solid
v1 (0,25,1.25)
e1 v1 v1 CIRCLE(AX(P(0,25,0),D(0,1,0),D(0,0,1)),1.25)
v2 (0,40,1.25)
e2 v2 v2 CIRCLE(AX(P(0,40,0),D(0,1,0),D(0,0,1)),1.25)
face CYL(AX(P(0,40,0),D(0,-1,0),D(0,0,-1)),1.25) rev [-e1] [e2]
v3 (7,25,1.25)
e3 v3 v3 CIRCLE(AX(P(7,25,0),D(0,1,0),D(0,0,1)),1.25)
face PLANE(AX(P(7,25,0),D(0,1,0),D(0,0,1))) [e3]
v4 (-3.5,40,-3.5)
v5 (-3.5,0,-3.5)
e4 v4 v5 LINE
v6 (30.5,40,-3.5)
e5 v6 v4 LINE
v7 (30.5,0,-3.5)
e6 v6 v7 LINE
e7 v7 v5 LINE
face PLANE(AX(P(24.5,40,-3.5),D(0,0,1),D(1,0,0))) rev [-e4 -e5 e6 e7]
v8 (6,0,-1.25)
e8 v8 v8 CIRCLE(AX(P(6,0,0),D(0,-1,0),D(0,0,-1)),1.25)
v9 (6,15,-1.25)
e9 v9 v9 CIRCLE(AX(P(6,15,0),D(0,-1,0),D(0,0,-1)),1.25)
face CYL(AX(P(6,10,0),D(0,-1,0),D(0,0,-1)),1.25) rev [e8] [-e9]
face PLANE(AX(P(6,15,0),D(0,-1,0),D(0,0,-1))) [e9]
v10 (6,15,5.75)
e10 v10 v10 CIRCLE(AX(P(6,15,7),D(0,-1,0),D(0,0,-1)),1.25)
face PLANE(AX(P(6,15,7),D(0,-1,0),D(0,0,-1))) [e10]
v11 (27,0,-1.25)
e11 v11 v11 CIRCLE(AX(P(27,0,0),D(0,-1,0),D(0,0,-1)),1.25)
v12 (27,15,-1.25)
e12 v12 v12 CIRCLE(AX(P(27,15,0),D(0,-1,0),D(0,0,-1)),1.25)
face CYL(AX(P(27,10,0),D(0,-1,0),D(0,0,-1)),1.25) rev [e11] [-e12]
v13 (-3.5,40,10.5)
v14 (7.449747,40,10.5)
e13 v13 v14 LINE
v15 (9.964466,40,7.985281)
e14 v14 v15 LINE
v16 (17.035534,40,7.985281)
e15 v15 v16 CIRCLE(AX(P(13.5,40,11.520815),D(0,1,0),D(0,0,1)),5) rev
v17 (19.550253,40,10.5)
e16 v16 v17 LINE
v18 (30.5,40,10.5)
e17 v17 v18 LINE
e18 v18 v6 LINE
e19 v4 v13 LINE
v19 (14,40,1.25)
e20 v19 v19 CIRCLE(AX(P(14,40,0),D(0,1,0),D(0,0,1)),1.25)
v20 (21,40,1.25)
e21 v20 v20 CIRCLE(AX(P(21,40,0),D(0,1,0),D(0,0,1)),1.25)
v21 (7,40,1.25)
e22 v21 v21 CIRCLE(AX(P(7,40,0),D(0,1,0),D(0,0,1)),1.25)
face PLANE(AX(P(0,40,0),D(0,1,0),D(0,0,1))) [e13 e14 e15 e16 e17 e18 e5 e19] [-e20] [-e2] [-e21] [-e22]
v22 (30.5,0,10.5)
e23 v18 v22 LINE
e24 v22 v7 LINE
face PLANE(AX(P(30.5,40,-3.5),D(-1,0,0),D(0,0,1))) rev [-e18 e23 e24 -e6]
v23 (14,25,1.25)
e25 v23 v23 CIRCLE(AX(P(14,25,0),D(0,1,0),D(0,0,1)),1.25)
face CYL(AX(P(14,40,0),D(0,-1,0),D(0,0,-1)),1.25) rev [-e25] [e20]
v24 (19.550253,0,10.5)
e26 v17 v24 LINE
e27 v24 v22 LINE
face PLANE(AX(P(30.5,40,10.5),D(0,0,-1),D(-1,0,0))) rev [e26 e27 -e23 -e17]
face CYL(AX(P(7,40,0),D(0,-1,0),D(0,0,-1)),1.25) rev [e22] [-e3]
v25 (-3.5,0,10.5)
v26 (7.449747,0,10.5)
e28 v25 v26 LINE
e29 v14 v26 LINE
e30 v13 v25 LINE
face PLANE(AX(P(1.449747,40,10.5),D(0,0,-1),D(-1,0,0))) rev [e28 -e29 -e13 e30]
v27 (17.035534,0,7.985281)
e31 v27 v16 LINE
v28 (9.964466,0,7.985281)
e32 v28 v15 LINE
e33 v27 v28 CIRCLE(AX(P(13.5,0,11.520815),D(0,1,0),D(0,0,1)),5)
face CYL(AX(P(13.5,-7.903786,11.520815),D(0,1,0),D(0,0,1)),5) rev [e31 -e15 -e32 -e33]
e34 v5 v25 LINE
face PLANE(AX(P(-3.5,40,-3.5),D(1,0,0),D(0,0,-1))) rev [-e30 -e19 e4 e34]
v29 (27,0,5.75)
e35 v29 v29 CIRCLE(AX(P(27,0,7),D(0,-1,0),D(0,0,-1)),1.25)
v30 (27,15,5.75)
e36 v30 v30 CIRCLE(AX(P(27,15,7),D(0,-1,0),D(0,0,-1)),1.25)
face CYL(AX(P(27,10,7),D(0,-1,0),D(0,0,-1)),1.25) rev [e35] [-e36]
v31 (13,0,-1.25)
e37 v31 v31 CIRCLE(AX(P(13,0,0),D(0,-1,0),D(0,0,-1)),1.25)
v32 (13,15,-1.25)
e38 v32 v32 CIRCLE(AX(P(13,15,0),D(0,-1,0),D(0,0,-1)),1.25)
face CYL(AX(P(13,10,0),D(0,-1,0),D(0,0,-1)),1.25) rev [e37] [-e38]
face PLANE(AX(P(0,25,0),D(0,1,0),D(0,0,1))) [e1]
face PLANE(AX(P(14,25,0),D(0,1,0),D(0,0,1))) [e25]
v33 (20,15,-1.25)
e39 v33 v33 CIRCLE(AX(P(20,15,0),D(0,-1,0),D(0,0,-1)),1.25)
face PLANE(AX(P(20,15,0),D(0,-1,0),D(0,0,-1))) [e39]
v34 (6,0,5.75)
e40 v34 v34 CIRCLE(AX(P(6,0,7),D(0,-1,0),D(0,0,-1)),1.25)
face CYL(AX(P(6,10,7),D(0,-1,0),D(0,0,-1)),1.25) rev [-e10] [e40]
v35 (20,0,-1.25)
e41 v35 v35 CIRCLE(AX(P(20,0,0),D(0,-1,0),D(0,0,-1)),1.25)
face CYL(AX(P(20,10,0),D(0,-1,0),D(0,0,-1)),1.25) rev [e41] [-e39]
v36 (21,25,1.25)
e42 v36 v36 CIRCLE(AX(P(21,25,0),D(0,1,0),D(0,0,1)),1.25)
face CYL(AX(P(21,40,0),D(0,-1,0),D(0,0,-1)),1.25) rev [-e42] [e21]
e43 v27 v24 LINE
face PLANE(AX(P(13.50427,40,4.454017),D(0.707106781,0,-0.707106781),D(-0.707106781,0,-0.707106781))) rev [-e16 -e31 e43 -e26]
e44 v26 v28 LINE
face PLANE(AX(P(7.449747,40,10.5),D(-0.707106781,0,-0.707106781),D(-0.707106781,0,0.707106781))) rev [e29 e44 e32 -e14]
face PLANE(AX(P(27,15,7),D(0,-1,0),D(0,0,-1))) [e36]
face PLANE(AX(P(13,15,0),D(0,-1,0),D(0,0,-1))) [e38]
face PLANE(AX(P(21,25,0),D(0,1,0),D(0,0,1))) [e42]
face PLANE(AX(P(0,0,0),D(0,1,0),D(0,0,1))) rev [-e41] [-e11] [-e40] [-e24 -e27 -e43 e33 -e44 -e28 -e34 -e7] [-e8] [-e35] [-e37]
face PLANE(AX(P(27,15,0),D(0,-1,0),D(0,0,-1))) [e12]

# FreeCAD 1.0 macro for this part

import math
import FreeCAD as App
import Part
import Sketcher

V = App.Vector
Q = App.Units.Quantity

doc = App.newDocument("Part")
body = doc.addObject("PartDesign::Body", "Body")

sketch1 = body.newObject("Sketcher::SketchObject", "Sketch")
sketch1.AttachmentSupport = (doc.getObject("XZ_Plane"), [""])
sketch1.MapMode = "FlatFace"
sketch1.addGeometry([
    Part.LineSegment(V(-3.5, -3.5, 0), V(-3.5, 10.5, 0)),
    Part.LineSegment(V(-3.5, 10.5, 0), V(7.45, 10.5, 0)),
    Part.LineSegment(V(7.45, 10.5, 0), V(13.496, 4.454, 0)),
    Part.LineSegment(V(13.496, 4.454, 0), V(13.504, 4.454, 0)),
    Part.LineSegment(V(13.504, 4.454, 0), V(19.55, 10.5, 0)),
    Part.LineSegment(V(19.55, 10.5, 0), V(30.5, 10.5, 0)),
    Part.LineSegment(V(30.5, 10.5, 0), V(30.5, -3.5, 0)),
    Part.LineSegment(V(30.5, -3.5, 0), V(-3.5, -3.5, 0)),
    Part.Circle(V(0, 7, 0), V(0, 0, 1), 1.25),
    Part.Circle(V(21, 7, 0), V(0, 0, 1), 1.25),
    Part.Circle(V(0, 0, 0), V(0, 0, 1), 1.25),
    Part.Circle(V(7, 0, 0), V(0, 0, 1), 1.25),
    Part.Circle(V(14, 0, 0), V(0, 0, 1), 1.25),
    Part.Circle(V(21, 0, 0), V(0, 0, 1), 1.25),
], False)
sketch1.addConstraint([
    Sketcher.Constraint("Coincident", 0, 2, 1, 1),
    Sketcher.Constraint("Coincident", 1, 2, 2, 1),
    Sketcher.Constraint("Coincident", 2, 2, 3, 1),
    Sketcher.Constraint("Coincident", 3, 2, 4, 1),
    Sketcher.Constraint("Coincident", 4, 2, 5, 1),
    Sketcher.Constraint("Coincident", 5, 2, 6, 1),
    Sketcher.Constraint("Coincident", 6, 2, 7, 1),
    Sketcher.Constraint("Coincident", 7, 2, 0, 1),
    Sketcher.Constraint("Vertical", 0),
    Sketcher.Constraint("Horizontal", 1),
    Sketcher.Constraint("Horizontal", 3),
    Sketcher.Constraint("Horizontal", 5),
    Sketcher.Constraint("Vertical", 6),
    Sketcher.Constraint("Horizontal", 7),
    Sketcher.Constraint("Coincident", 10, 3, -1, 1),
    Sketcher.Constraint("Equal", 8, 9),
    Sketcher.Constraint("Equal", 9, 10),
    Sketcher.Constraint("Equal", 10, 11),
    Sketcher.Constraint("Equal", 11, 12),
    Sketcher.Constraint("Equal", 12, 13),
    Sketcher.Constraint("PointOnObject", 8, 3, -2),
    Sketcher.Constraint("PointOnObject", 11, 3, -1),
    Sketcher.Constraint("PointOnObject", 12, 3, -1),
    Sketcher.Constraint("PointOnObject", 13, 3, -1),
    Sketcher.Constraint("Perpendicular", 2, 4),
    Sketcher.Constraint("Horizontal", 8, 3, 9, 3),
    Sketcher.Constraint("Horizontal", 1, 2, 4, 2),
    Sketcher.Constraint("Vertical", 9, 3, 13, 3),
    Sketcher.Constraint("Equal", 1, 5),
    Sketcher.Constraint("Equal", 2, 4),
    Sketcher.Constraint("Diameter", 8, Q("2.5 mm")),
    Sketcher.Constraint("DistanceX", 7, 2, 7, 1, Q("34 mm")),
    Sketcher.Constraint("DistanceY", 0, 1, 0, 2, Q("14 mm")),
    Sketcher.Constraint("DistanceY", -1, 1, 8, 3, Q("7 mm")),
    Sketcher.Constraint("DistanceX", -1, 1, 9, 3, Q("21 mm")),
    Sketcher.Constraint("DistanceX", -1, 1, 11, 3, Q("7 mm")),
    Sketcher.Constraint("DistanceX", -1, 1, 12, 3, Q("14 mm")),
    Sketcher.Constraint("DistanceX", 0, 2, -1, 1, Q("3.5 mm")),
    Sketcher.Constraint("DistanceY", -1, 1, 0, 2, Q("10.5 mm")),
    Sketcher.Constraint("DistanceX", 3, 1, 3, 2, Q("0.00854 mm")),
    Sketcher.Constraint("Distance", 2, Q("8.550311 mm")),
])
pad1 = body.newObject("PartDesign::Pad", "Pad")
pad1.Profile = sketch1
pad1.Length = 40
pad1.Reversed = True

sketch2 = body.newObject("Sketcher::SketchObject", "Sketch001")
sketch2.AttachmentSupport = (doc.getObject("XZ_Plane"), [""])
sketch2.MapMode = "FlatFace"
sketch2.addGeometry([
    Part.Circle(V(0, 7, 0), V(0, 0, 1), 1.2),
    Part.Circle(V(0, 0, 0), V(0, 0, 1), 1.2),
    Part.ArcOfCircle(Part.Circle(V(6, 0, 0), V(0, 0, 1), 1.2), math.radians(66), math.radians(294)),
    Part.ArcOfCircle(Part.Circle(V(7, 0, 0), V(0, 0, 1), 1.2), math.radians(-114), math.radians(114)),
    Part.ArcOfCircle(Part.Circle(V(13, 0, 0), V(0, 0, 1), 1.2), math.radians(66), math.radians(294)),
    Part.ArcOfCircle(Part.Circle(V(14, 0, 0), V(0, 0, 1), 1.2), math.radians(-114), math.radians(114)),
    Part.ArcOfCircle(Part.Circle(V(20, 0, 0), V(0, 0, 1), 1.2), math.radians(66), math.radians(294)),
    Part.ArcOfCircle(Part.Circle(V(21, 0, 0), V(0, 0, 1), 1.2), math.radians(-114), math.radians(114)),
    Part.Circle(V(21, 7, 0), V(0, 0, 1), 1.2),
], False)
sketch2.addConstraint([
    Sketcher.Constraint("Coincident", 2, 1, 3, 2),
    Sketcher.Constraint("Coincident", 3, 1, 2, 2),
    Sketcher.Constraint("Coincident", 4, 1, 5, 2),
    Sketcher.Constraint("Coincident", 5, 1, 4, 2),
    Sketcher.Constraint("Coincident", 6, 1, 7, 2),
    Sketcher.Constraint("Coincident", 7, 1, 6, 2),
    Sketcher.Constraint("Coincident", 1, 3, -1, 1),
    Sketcher.Constraint("Equal", 0, 1),
    Sketcher.Constraint("Equal", 1, 2),
    Sketcher.Constraint("Equal", 2, 3),
    Sketcher.Constraint("Equal", 3, 4),
    Sketcher.Constraint("Equal", 4, 5),
    Sketcher.Constraint("Equal", 5, 6),
    Sketcher.Constraint("Equal", 6, 7),
    Sketcher.Constraint("Equal", 7, 8),
    Sketcher.Constraint("Symmetric", 2, 1, 3, 1, -1),
    Sketcher.Constraint("Symmetric", 4, 1, 5, 1, -1),
    Sketcher.Constraint("Symmetric", 6, 1, 7, 1, -1),
    Sketcher.Constraint("PointOnObject", 0, 3, -2),
    Sketcher.Constraint("Horizontal", 0, 3, 8, 3),
    Sketcher.Constraint("Horizontal", 2, 1, 4, 1),
    Sketcher.Constraint("Horizontal", 4, 1, 6, 1),
    Sketcher.Constraint("Vertical", 7, 3, 8, 3),
    Sketcher.Constraint("Diameter", 0, Q("2.5 mm")),
    Sketcher.Constraint("DistanceY", -1, 1, 0, 3, Q("7 mm")),
    Sketcher.Constraint("DistanceX", -1, 1, 2, 3, Q("6 mm")),
    Sketcher.Constraint("DistanceX", -1, 1, 3, 3, Q("7 mm")),
    Sketcher.Constraint("DistanceX", -1, 1, 4, 3, Q("13 mm")),
    Sketcher.Constraint("DistanceX", -1, 1, 6, 3, Q("20 mm")),
])
pad2 = body.newObject("PartDesign::Pad", "Pad001")
pad2.Profile = sketch2
pad2.Length = 30
pad2.Reversed = True

sketch3 = body.newObject("Sketcher::SketchObject", "Sketch002")
sketch3.AttachmentSupport = (doc.getObject("XZ_Plane"), [""])
sketch3.MapMode = "FlatFace"
sketch3.addGeometry([
    Part.Circle(V(27, 7, 0), V(0, 0, 1), 1.2),
    Part.Circle(V(27, 0, 0), V(0, 0, 1), 1.2),
    Part.Circle(V(20, 0, 0), V(0, 0, 1), 1.2),
    Part.Circle(V(13, 0, 0), V(0, 0, 1), 1.2),
    Part.Circle(V(6, 0, 0), V(0, 0, 1), 1.2),
    Part.Circle(V(6, 7, 0), V(0, 0, 1), 1.2),
], False)
sketch3.addConstraint([
    Sketcher.Constraint("Equal", 0, 1),
    Sketcher.Constraint("Equal", 1, 2),
    Sketcher.Constraint("Equal", 2, 3),
    Sketcher.Constraint("Equal", 3, 4),
    Sketcher.Constraint("Equal", 4, 5),
    Sketcher.Constraint("PointOnObject", 1, 3, -1),
    Sketcher.Constraint("PointOnObject", 2, 3, -1),
    Sketcher.Constraint("PointOnObject", 3, 3, -1),
    Sketcher.Constraint("PointOnObject", 4, 3, -1),
    Sketcher.Constraint("Horizontal", 0, 3, 5, 3),
    Sketcher.Constraint("Vertical", 0, 3, 1, 3),
    Sketcher.Constraint("Vertical", 4, 3, 5, 3),
    Sketcher.Constraint("Diameter", 0, Q("2.5 mm")),
    Sketcher.Constraint("DistanceX", -1, 1, 0, 3, Q("27 mm")),
    Sketcher.Constraint("DistanceY", -1, 1, 0, 3, Q("7 mm")),
    Sketcher.Constraint("DistanceX", -1, 1, 2, 3, Q("20 mm")),
    Sketcher.Constraint("DistanceX", -1, 1, 3, 3, Q("13 mm")),
    Sketcher.Constraint("DistanceX", -1, 1, 4, 3, Q("6 mm")),
])
pocket1 = body.newObject("PartDesign::Pocket", "Pocket")
pocket1.Profile = sketch3
pocket1.Length = 10

sketch4 = body.newObject("Sketcher::SketchObject", "Sketch003")
sketch4.AttachmentSupport = (doc.getObject("XZ_Plane"), [""])
sketch4.MapMode = "FlatFace"
sketch4.AttachmentOffset = App.Placement(V(0, 0, -30), App.Rotation())
sketch4.addGeometry([
    Part.ArcOfCircle(Part.Circle(V(0, 7, 0), V(0, 0, 1), 1.2), math.radians(-154), math.radians(-26)),
    Part.ArcOfCircle(Part.Circle(V(0, 7, 0), V(0, 0, 1), 1.2), math.radians(0), math.radians(206)),
    Part.ArcOfCircle(Part.Circle(V(0, 7, 0), V(0, 0, 1), 1.3), math.radians(-26), math.radians(0)),
    Part.ArcOfCircle(Part.Circle(V(21, 7, 0), V(0, 0, 1), 1.3), math.radians(-26), math.radians(0)),
    Part.ArcOfCircle(Part.Circle(V(21, 7, 0), V(0, 0, 1), 1.2), math.radians(-154), math.radians(-26)),
    Part.ArcOfCircle(Part.Circle(V(21, 7, 0), V(0, 0, 1), 1.2), math.radians(0), math.radians(206)),
], False)
sketch4.addConstraint([
    Sketcher.Constraint("Tangent", 0, 1, 1, 2),
    Sketcher.Constraint("Tangent", 1, 1, 2, 2),
    Sketcher.Constraint("Tangent", 2, 1, 0, 2),
    Sketcher.Constraint("Tangent", 3, 1, 4, 2),
    Sketcher.Constraint("Tangent", 4, 1, 5, 2),
    Sketcher.Constraint("Tangent", 5, 1, 3, 2),
    Sketcher.Constraint("Equal", 2, 3),
    Sketcher.Constraint("Symmetric", 0, 1, 2, 1, -2),
    Sketcher.Constraint("Horizontal", 2, 3, 3, 3),
    Sketcher.Constraint("Horizontal", 5, 3, 1, 1),
    Sketcher.Constraint("Horizontal", 2, 1, 3, 1),
    Sketcher.Constraint("Horizontal", 3, 1, 4, 1),
    Sketcher.Constraint("Horizontal", 1, 1, 5, 1),
    Sketcher.Constraint("Radius", 0, Q("1.25 mm")),
    Sketcher.Constraint("DistanceY", -1, 1, 0, 3, Q("7 mm")),
    Sketcher.Constraint("DistanceX", -1, 1, 3, 3, Q("21 mm")),
    Sketcher.Constraint("DistanceX", 0, 1, -1, 1, Q("1.124457 mm")),
])
pad3 = body.newObject("PartDesign::Pad", "Pad002")
pad3.Profile = sketch4
pad3.Length = 10
pad3.Reversed = True

sketch5 = body.newObject("Sketcher::SketchObject", "Sketch004")
sketch5.AttachmentSupport = (doc.getObject("XZ_Plane"), [""])
sketch5.MapMode = "FlatFace"
sketch5.AttachmentOffset = App.Placement(V(0, 0, -25), App.Rotation())
sketch5.addGeometry([
    Part.Circle(V(21, 0, 0), V(0, 0, 1), 1.2),
    Part.Circle(V(14, 0, 0), V(0, 0, 1), 1.2),
    Part.Circle(V(7, 0, 0), V(0, 0, 1), 1.2),
    Part.Circle(V(0, 0, 0), V(0, 0, 1), 1.2),
], False)
sketch5.addConstraint([
    Sketcher.Constraint("Coincident", 3, 3, -1, 1),
    Sketcher.Constraint("Equal", 0, 1),
    Sketcher.Constraint("Equal", 1, 2),
    Sketcher.Constraint("Equal", 2, 3),
    Sketcher.Constraint("PointOnObject", 0, 3, -1),
    Sketcher.Constraint("PointOnObject", 1, 3, -1),
    Sketcher.Constraint("PointOnObject", 2, 3, -1),
    Sketcher.Constraint("Diameter", 0, Q("2.5 mm")),
    Sketcher.Constraint("DistanceX", -1, 1, 0, 3, Q("21 mm")),
    Sketcher.Constraint("DistanceX", -1, 1, 1, 3, Q("14 mm")),
    Sketcher.Constraint("DistanceX", -1, 1, 2, 3, Q("7 mm")),
])
pocket2 = body.newObject("PartDesign::Pocket", "Pocket001")
pocket2.Profile = sketch5
pocket2.Length = 15

sketch6 = body.newObject("Sketcher::SketchObject", "Sketch005")
sketch6.AttachmentSupport = (doc.getObject("XZ_Plane"), [""])
sketch6.MapMode = "FlatFace"
sketch6.addGeometry([
    Part.Circle(V(6, 7, 0), V(0, 0, 1), 1.2),
    Part.Circle(V(27, 7, 0), V(0, 0, 1), 1.2),
    Part.Circle(V(27, 0, 0), V(0, 0, 1), 1.2),
    Part.Circle(V(20, 0, 0), V(0, 0, 1), 1.2),
    Part.Circle(V(13, 0, 0), V(0, 0, 1), 1.2),
    Part.Circle(V(6, 0, 0), V(0, 0, 1), 1.2),
], False)
sketch6.addConstraint([
    Sketcher.Constraint("Equal", 0, 1),
    Sketcher.Constraint("Equal", 1, 2),
    Sketcher.Constraint("Equal", 2, 3),
    Sketcher.Constraint("Equal", 3, 4),
    Sketcher.Constraint("Equal", 4, 5),
    Sketcher.Constraint("PointOnObject", 2, 3, -1),
    Sketcher.Constraint("PointOnObject", 3, 3, -1),
    Sketcher.Constraint("PointOnObject", 4, 3, -1),
    Sketcher.Constraint("PointOnObject", 5, 3, -1),
    Sketcher.Constraint("Horizontal", 0, 3, 1, 3),
    Sketcher.Constraint("Vertical", 1, 3, 2, 3),
    Sketcher.Constraint("Vertical", 0, 3, 5, 3),
    Sketcher.Constraint("Diameter", 0, Q("2.5 mm")),
    Sketcher.Constraint("DistanceX", -1, 1, 0, 3, Q("6 mm")),
    Sketcher.Constraint("DistanceY", -1, 1, 0, 3, Q("7 mm")),
    Sketcher.Constraint("DistanceX", -1, 1, 1, 3, Q("27 mm")),
    Sketcher.Constraint("DistanceX", -1, 1, 3, 3, Q("20 mm")),
    Sketcher.Constraint("DistanceX", -1, 1, 4, 3, Q("13 mm")),
])
pocket3 = body.newObject("PartDesign::Pocket", "Pocket002")
pocket3.Profile = sketch6
pocket3.Length = 15

sketch7 = body.newObject("Sketcher::SketchObject", "Sketch006")
sketch7.AttachmentSupport = (doc.getObject("XZ_Plane"), [""])
sketch7.MapMode = "FlatFace"
sketch7.AttachmentOffset = App.Placement(V(0, 0, -40), App.Rotation())
sketch7.addGeometry([
    Part.LineSegment(V(13.504, 4.454, 0), V(13.496, 4.454, 0)),
    Part.LineSegment(V(13.496, 4.454, 0), V(9.964, 7.985, 0)),
    Part.ArcOfCircle(Part.Circle(V(13.5, 11.521, 0), V(0, 0, 1), 5), math.radians(-135), math.radians(-45)),
    Part.LineSegment(V(17.036, 7.985, 0), V(13.504, 4.454, 0)),
], False)
sketch7.addConstraint([
    Sketcher.Constraint("Coincident", 0, 2, 1, 1),
    Sketcher.Constraint("Tangent", 1, 2, 2, 1),
    Sketcher.Constraint("Tangent", 2, 2, 3, 1),
    Sketcher.Constraint("Coincident", 3, 2, 0, 1),
    Sketcher.Constraint("Horizontal", 0),
    Sketcher.Constraint("Perpendicular", 1, 3),
    Sketcher.Constraint("Horizontal", 1, 2, 2, 2),
    Sketcher.Constraint("Radius", 2, Q("5 mm")),
    Sketcher.Constraint("DistanceX", -1, 1, 2, 3, Q("13.5 mm")),
    Sketcher.Constraint("DistanceX", 0, 2, 0, 1, Q("0.00854 mm")),
    Sketcher.Constraint("DistanceY", -1, 1, 1, 2, Q("7.985281 mm")),
])
pad4 = body.newObject("PartDesign::Pad", "Pad003")
pad4.Profile = sketch7
pad4.Length = 40

doc.recompute()
